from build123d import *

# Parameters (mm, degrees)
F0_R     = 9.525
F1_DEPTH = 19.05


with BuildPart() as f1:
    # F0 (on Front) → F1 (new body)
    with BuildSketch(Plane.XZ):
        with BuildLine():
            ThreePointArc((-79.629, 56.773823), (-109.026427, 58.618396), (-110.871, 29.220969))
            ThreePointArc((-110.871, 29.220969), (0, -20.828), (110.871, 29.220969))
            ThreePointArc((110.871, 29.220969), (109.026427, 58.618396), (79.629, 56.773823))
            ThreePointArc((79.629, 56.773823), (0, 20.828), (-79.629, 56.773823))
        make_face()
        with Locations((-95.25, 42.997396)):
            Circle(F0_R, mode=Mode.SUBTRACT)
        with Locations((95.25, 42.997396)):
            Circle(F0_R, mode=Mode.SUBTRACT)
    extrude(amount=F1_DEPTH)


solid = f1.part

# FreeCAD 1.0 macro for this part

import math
import FreeCAD as App
import Part
import Sketcher
Q = App.Units.Quantity

doc = App.newDocument("Part")
params = doc.addObject("Spreadsheet::Sheet", "Params")
for row, (alias, value) in enumerate([
    ("sketch1_diameter", "0.75 in"),
    ("sketch1_radius", "0.82 in"),
    ("sketch1_radius2", "5.82 in"),
    ("pad1_length", "0.75 in"),
], start=1):
    params.set(f"A{row}", alias)
    params.set(f"B{row}", "=" + value)
    params.setAlias(f"B{row}", alias)

body = doc.addObject("PartDesign::Body", "Body")

# Sketch on XZ plane
sketch1 = body.newObject("Sketcher::SketchObject", "Sketch")
sketch1.AttachmentSupport = (doc.getObject("XZ_Plane"), [""])
sketch1.MapMode = "FlatFace"
sketch1.addGeometry(Part.ArcOfCircle(Part.Circle(App.Vector(-95, 43, 0), App.Vector(0, 0, 1), 21), math.radians(41), math.radians(221)), False)
sketch1.addGeometry(Part.ArcOfCircle(Part.Circle(App.Vector(0, 127, 0), App.Vector(0, 0, 1), 148), math.radians(-139), math.radians(-41)), False)
sketch1.addGeometry(Part.ArcOfCircle(Part.Circle(App.Vector(95, 43, 0), App.Vector(0, 0, 1), 21), math.radians(-41), math.radians(139)), False)
sketch1.addGeometry(Part.ArcOfCircle(Part.Circle(App.Vector(0, 127, 0), App.Vector(0, 0, 1), 106), math.radians(-139), math.radians(-41)), False)
sketch1.addGeometry(Part.Circle(App.Vector(-95, 43, 0), App.Vector(0, 0, 1), 10), False)
sketch1.addGeometry(Part.Circle(App.Vector(95, 43, 0), App.Vector(0, 0, 1), 10), False)
sketch1.addConstraint(Sketcher.Constraint("Tangent", 0, 2, 1, 1))
sketch1.addConstraint(Sketcher.Constraint("Tangent", 1, 2, 2, 1))
sketch1.addConstraint(Sketcher.Constraint("Tangent", 2, 2, 3, 2))
sketch1.addConstraint(Sketcher.Constraint("Tangent", 3, 1, 0, 1))
sketch1.addConstraint(Sketcher.Constraint("Coincident", 3, 3, 1, 3))
sketch1.addConstraint(Sketcher.Constraint("Coincident", 4, 3, 0, 3))
sketch1.addConstraint(Sketcher.Constraint("Coincident", 5, 3, 2, 3))
sketch1.addConstraint(Sketcher.Constraint("Equal", 4, 5))
sketch1.addConstraint(Sketcher.Constraint("Symmetric", 0, 3, 2, 3, -2))
sketch1.addConstraint(Sketcher.Constraint("Diameter", 4, Q("0.75 in")))
sketch1.addConstraint(Sketcher.Constraint("Radius", 0, Q("0.82 in")))
sketch1.addConstraint(Sketcher.Constraint("Radius", 1, Q("5.82 in")))
sketch1.addConstraint(Sketcher.Constraint("DistanceY", -1, 1, 1, 3, Q("5 in")))
sketch1.addConstraint(Sketcher.Constraint("DistanceX", 0, 3, 2, 3, Q("7.5 in")))
sketch1.setExpression("Constraints[9]", "Params.sketch1_diameter")
sketch1.setExpression("Constraints[10]", "Params.sketch1_radius")
sketch1.setExpression("Constraints[11]", "Params.sketch1_radius2")
pad1 = body.newObject("PartDesign::Pad", "Pad")
pad1.Profile = sketch1
pad1.setExpression("Length", "Params.pad1_length")

doc.recompute()
